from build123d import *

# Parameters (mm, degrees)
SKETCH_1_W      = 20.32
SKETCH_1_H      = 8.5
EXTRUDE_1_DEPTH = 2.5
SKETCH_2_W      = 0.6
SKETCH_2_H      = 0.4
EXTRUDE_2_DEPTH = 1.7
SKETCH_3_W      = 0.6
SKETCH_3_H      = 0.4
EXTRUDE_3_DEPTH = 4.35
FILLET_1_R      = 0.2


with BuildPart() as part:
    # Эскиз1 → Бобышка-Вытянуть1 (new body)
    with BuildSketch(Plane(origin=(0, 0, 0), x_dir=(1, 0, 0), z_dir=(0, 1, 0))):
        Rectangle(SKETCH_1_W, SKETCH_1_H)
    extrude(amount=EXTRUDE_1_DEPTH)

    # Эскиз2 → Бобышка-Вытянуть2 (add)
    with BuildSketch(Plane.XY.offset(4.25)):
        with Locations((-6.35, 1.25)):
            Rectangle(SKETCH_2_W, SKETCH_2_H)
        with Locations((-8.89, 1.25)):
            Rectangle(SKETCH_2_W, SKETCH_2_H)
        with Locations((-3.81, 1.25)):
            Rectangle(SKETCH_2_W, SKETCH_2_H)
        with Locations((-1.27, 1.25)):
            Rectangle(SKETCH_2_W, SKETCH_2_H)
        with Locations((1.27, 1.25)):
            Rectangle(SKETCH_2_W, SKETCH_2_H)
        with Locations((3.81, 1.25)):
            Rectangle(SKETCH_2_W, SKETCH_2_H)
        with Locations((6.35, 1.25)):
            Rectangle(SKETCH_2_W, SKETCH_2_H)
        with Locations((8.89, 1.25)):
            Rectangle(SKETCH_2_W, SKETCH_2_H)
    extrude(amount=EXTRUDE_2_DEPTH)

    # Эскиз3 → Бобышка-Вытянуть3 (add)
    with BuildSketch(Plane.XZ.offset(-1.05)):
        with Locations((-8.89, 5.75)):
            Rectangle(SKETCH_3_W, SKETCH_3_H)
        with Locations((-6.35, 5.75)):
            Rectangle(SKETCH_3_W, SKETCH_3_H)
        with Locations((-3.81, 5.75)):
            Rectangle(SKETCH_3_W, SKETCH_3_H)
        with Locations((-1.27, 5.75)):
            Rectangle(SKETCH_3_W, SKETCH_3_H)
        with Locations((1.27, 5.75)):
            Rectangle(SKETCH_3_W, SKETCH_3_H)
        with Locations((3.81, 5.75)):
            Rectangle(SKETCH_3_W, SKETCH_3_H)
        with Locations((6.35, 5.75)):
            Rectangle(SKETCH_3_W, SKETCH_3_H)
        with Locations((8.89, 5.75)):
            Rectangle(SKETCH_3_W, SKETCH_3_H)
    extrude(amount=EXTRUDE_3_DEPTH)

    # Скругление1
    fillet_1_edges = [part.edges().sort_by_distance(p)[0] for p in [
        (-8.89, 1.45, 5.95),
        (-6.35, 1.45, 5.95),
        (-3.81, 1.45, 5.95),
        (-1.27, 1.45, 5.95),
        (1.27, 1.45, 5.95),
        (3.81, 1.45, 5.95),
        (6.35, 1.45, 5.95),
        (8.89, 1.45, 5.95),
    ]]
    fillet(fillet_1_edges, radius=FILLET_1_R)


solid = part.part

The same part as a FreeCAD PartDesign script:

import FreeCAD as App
import Part
import Sketcher
from FreeCAD import Vector


def edges_at(feature, points):
    """Names of the edges that pass closest to the given points."""
    edges = feature.Shape.Edges
    near = lambda p: min(range(len(edges)), key=lambda i: edges[i].distToShape(Part.Vertex(*p))[0])
    return sorted({f"Edge{near(p) + 1}" for p in points})

doc = App.newDocument("Part")
body = doc.addObject("PartDesign::Body", "Body")

# Sketch on XZ plane
sketch1 = body.newObject("Sketcher::SketchObject", "Sketch")
sketch1.AttachmentSupport = (doc.getObject("XZ_Plane"), [""])
sketch1.MapMode = "FlatFace"
sketch1.addGeometry([
    Part.LineSegment(Vector(-10, -4, 0), Vector(-10, 4, 0)),
    Part.LineSegment(Vector(-10, 4, 0), Vector(10, 4, 0)),
    Part.LineSegment(Vector(10, 4, 0), Vector(10, -4, 0)),
    Part.LineSegment(Vector(10, -4, 0), Vector(-10, -4, 0)),
], False)
sketch1.addConstraint([
    Sketcher.Constraint("Coincident", 0, 2, 1, 1),
    Sketcher.Constraint("Coincident", 1, 2, 2, 1),
    Sketcher.Constraint("Coincident", 2, 2, 3, 1),
    Sketcher.Constraint("Coincident", 3, 2, 0, 1),
    Sketcher.Constraint("Vertical", 0),
    Sketcher.Constraint("Horizontal", 1),
    Sketcher.Constraint("Vertical", 2),
    Sketcher.Constraint("Horizontal", 3),
    Sketcher.Constraint("Symmetric", 0, 2, 2, 2, -1, 1),
    Sketcher.Constraint("DistanceY", 0, 1, 0, 2, 8.5),
    Sketcher.Constraint("DistanceX", 1, 1, 1, 2, 20.32),
])
pad1 = body.newObject("PartDesign::Pad", "Pad")
pad1.Profile = sketch1
pad1.Length = 2.5
pad1.Reversed = True

# Sketch on XY plane
sketch2 = body.newObject("Sketcher::SketchObject", "Sketch001")
sketch2.AttachmentSupport = (doc.getObject("XY_Plane"), [""])
sketch2.MapMode = "FlatFace"
sketch2.AttachmentOffset = App.Placement(Vector(0, 0, 4.25), App.Rotation())
sketch2.addGeometry([
    Part.LineSegment(Vector(-6.65, 1.45, 0), Vector(-6.65, 1.05, 0)),  # 0
    Part.LineSegment(Vector(-6.65, 1.05, 0), Vector(-6.05, 1.05, 0)),  # 1
    Part.LineSegment(Vector(-6.05, 1.05, 0), Vector(-6.05, 1.45, 0)),  # 2
    Part.LineSegment(Vector(-6.05, 1.45, 0), Vector(-6.65, 1.45, 0)),  # 3
    Part.LineSegment(Vector(-9.19, 1.45, 0), Vector(-9.19, 1.05, 0)),  # 4
    Part.LineSegment(Vector(-9.19, 1.05, 0), Vector(-8.59, 1.05, 0)),  # 5
    Part.LineSegment(Vector(-8.59, 1.05, 0), Vector(-8.59, 1.45, 0)),  # 6
    Part.LineSegment(Vector(-8.59, 1.45, 0), Vector(-9.19, 1.45, 0)),  # 7
    Part.LineSegment(Vector(-4.11, 1.45, 0), Vector(-4.11, 1.05, 0)),  # 8
    Part.LineSegment(Vector(-4.11, 1.05, 0), Vector(-3.51, 1.05, 0)),  # 9
    Part.LineSegment(Vector(-3.51, 1.05, 0), Vector(-3.51, 1.45, 0)),  # 10
    Part.LineSegment(Vector(-3.51, 1.45, 0), Vector(-4.11, 1.45, 0)),  # 11
    Part.LineSegment(Vector(-1.57, 1.45, 0), Vector(-1.57, 1.05, 0)),  # 12
    Part.LineSegment(Vector(-1.57, 1.05, 0), Vector(-0.97, 1.05, 0)),  # 13
    Part.LineSegment(Vector(-0.97, 1.05, 0), Vector(-0.97, 1.45, 0)),  # 14
    Part.LineSegment(Vector(-0.97, 1.45, 0), Vector(-1.57, 1.45, 0)),  # 15
    Part.LineSegment(Vector(0.97, 1.45, 0), Vector(0.97, 1.05, 0)),  # 16
    Part.LineSegment(Vector(0.97, 1.05, 0), Vector(1.57, 1.05, 0)),  # 17
    Part.LineSegment(Vector(1.57, 1.05, 0), Vector(1.57, 1.45, 0)),  # 18
    Part.LineSegment(Vector(1.57, 1.45, 0), Vector(0.97, 1.45, 0)),  # 19
    Part.LineSegment(Vector(3.51, 1.45, 0), Vector(3.51, 1.05, 0)),  # 20
    Part.LineSegment(Vector(3.51, 1.05, 0), Vector(4.11, 1.05, 0)),  # 21
    Part.LineSegment(Vector(4.11, 1.05, 0), Vector(4.11, 1.45, 0)),  # 22
    Part.LineSegment(Vector(4.11, 1.45, 0), Vector(3.51, 1.45, 0)),  # 23
    Part.LineSegment(Vector(6.05, 1.45, 0), Vector(6.05, 1.05, 0)),  # 24
    Part.LineSegment(Vector(6.05, 1.05, 0), Vector(6.65, 1.05, 0)),  # 25
    Part.LineSegment(Vector(6.65, 1.05, 0), Vector(6.65, 1.45, 0)),  # 26
    Part.LineSegment(Vector(6.65, 1.45, 0), Vector(6.05, 1.45, 0)),  # 27
    Part.LineSegment(Vector(8.59, 1.45, 0), Vector(8.59, 1.05, 0)),  # 28
    Part.LineSegment(Vector(8.59, 1.05, 0), Vector(9.19, 1.05, 0)),  # 29
    Part.LineSegment(Vector(9.19, 1.05, 0), Vector(9.19, 1.45, 0)),  # 30
    Part.LineSegment(Vector(9.19, 1.45, 0), Vector(8.59, 1.45, 0)),  # 31
], False)
sketch2.addConstraint([
    Sketcher.Constraint("Coincident", 0, 2, 1, 1),
    Sketcher.Constraint("Coincident", 1, 2, 2, 1),
    Sketcher.Constraint("Coincident", 2, 2, 3, 1),
    Sketcher.Constraint("Coincident", 3, 2, 0, 1),
    Sketcher.Constraint("Coincident", 4, 2, 5, 1),
    Sketcher.Constraint("Coincident", 5, 2, 6, 1),
    Sketcher.Constraint("Coincident", 6, 2, 7, 1),
    Sketcher.Constraint("Coincident", 7, 2, 4, 1),
    Sketcher.Constraint("Coincident", 8, 2, 9, 1),
    Sketcher.Constraint("Coincident", 9, 2, 10, 1),
    Sketcher.Constraint("Coincident", 10, 2, 11, 1),
    Sketcher.Constraint("Coincident", 11, 2, 8, 1),
    Sketcher.Constraint("Coincident", 12, 2, 13, 1),
    Sketcher.Constraint("Coincident", 13, 2, 14, 1),
    Sketcher.Constraint("Coincident", 14, 2, 15, 1),
    Sketcher.Constraint("Coincident", 15, 2, 12, 1),
    Sketcher.Constraint("Coincident", 16, 2, 17, 1),
    Sketcher.Constraint("Coincident", 17, 2, 18, 1),
    Sketcher.Constraint("Coincident", 18, 2, 19, 1),
    Sketcher.Constraint("Coincident", 19, 2, 16, 1),
    Sketcher.Constraint("Coincident", 20, 2, 21, 1),
    Sketcher.Constraint("Coincident", 21, 2, 22, 1),
    Sketcher.Constraint("Coincident", 22, 2, 23, 1),
    Sketcher.Constraint("Coincident", 23, 2, 20, 1),
    Sketcher.Constraint("Coincident", 24, 2, 25, 1),
    Sketcher.Constraint("Coincident", 25, 2, 26, 1),
    Sketcher.Constraint("Coincident", 26, 2, 27, 1),
    Sketcher.Constraint("Coincident", 27, 2, 24, 1),
    Sketcher.Constraint("Coincident", 28, 2, 29, 1),
    Sketcher.Constraint("Coincident", 29, 2, 30, 1),
    Sketcher.Constraint("Coincident", 30, 2, 31, 1),
    Sketcher.Constraint("Coincident", 31, 2, 28, 1),
    Sketcher.Constraint("Vertical", 0),
    Sketcher.Constraint("Horizontal", 1),
    Sketcher.Constraint("Vertical", 2),
    Sketcher.Constraint("Horizontal", 3),
    Sketcher.Constraint("Vertical", 4),
    Sketcher.Constraint("Horizontal", 5),
    Sketcher.Constraint("Vertical", 6),
    Sketcher.Constraint("Horizontal", 7),
    Sketcher.Constraint("Vertical", 8),
    Sketcher.Constraint("Horizontal", 9),
    Sketcher.Constraint("Vertical", 10),
    Sketcher.Constraint("Horizontal", 11),
    Sketcher.Constraint("Vertical", 12),
    Sketcher.Constraint("Horizontal", 13),
    Sketcher.Constraint("Vertical", 14),
    Sketcher.Constraint("Horizontal", 15),
    Sketcher.Constraint("Vertical", 16),
    Sketcher.Constraint("Horizontal", 17),
    Sketcher.Constraint("Vertical", 18),
    Sketcher.Constraint("Horizontal", 19),
    Sketcher.Constraint("Vertical", 20),
    Sketcher.Constraint("Horizontal", 21),
    Sketcher.Constraint("Vertical", 22),
    Sketcher.Constraint("Horizontal", 23),
    Sketcher.Constraint("Vertical", 24),
    Sketcher.Constraint("Horizontal", 25),
    Sketcher.Constraint("Vertical", 26),
    Sketcher.Constraint("Horizontal", 27),
    Sketcher.Constraint("Vertical", 28),
    Sketcher.Constraint("Horizontal", 29),
    Sketcher.Constraint("Vertical", 30),
    Sketcher.Constraint("Horizontal", 31),
    Sketcher.Constraint("Symmetric", 13, 2, 16, 2, -2),
    Sketcher.Constraint("Symmetric", 15, 2, 18, 2, -2),
    Sketcher.Constraint("Symmetric", 9, 2, 20, 2, -2),
    Sketcher.Constraint("Symmetric", 11, 2, 22, 2, -2),
    Sketcher.Constraint("Symmetric", 1, 2, 24, 2, -2),
    Sketcher.Constraint("Symmetric", 3, 2, 26, 2, -2),
    Sketcher.Constraint("Symmetric", 5, 2, 28, 2, -2),
    Sketcher.Constraint("Symmetric", 7, 2, 30, 2, -2),
    Sketcher.Constraint("Horizontal", 1, 2, 4, 2),
    Sketcher.Constraint("Horizontal", 3, 2, 6, 2),
    Sketcher.Constraint("Horizontal", 5, 2, 8, 2),
    Sketcher.Constraint("Horizontal", 7, 2, 10, 2),
    Sketcher.Constraint("Horizontal", 9, 2, 12, 2),
    Sketcher.Constraint("Horizontal", 11, 2, 14, 2),
    Sketcher.Constraint("Equal", 3, 5),
    Sketcher.Constraint("Equal", 7, 9),
    Sketcher.Constraint("Equal", 11, 13),
    Sketcher.Constraint("DistanceX", 1, 1, 1, 2, 0.6),
    Sketcher.Constraint("DistanceY", 0, 2, 0, 1, 0.4),
    Sketcher.Constraint("DistanceX", 0, 2, -1, 1, 6.65),
    Sketcher.Constraint("DistanceY", -1, 1, 0, 2, 1.05),
    Sketcher.Constraint("DistanceX", 4, 2, -1, 1, 9.19),
    Sketcher.Constraint("DistanceX", 8, 2, -1, 1, 4.11),
    Sketcher.Constraint("DistanceX", 12, 2, -1, 1, 1.57),
])
pad2 = body.newObject("PartDesign::Pad", "Pad001")
pad2.Profile = sketch2
pad2.Length = 1.7

# Sketch on XZ plane
sketch3 = body.newObject("Sketcher::SketchObject", "Sketch002")
sketch3.AttachmentSupport = (doc.getObject("XZ_Plane"), [""])
sketch3.MapMode = "FlatFace"
sketch3.AttachmentOffset = App.Placement(Vector(0, 0, -1.05), App.Rotation())
sketch3.addGeometry([
    Part.LineSegment(Vector(-9.19, 5.95, 0), Vector(-9.19, 5.55, 0)),  # 0
    Part.LineSegment(Vector(-9.19, 5.55, 0), Vector(-8.59, 5.55, 0)),  # 1
    Part.LineSegment(Vector(-8.59, 5.55, 0), Vector(-8.59, 5.95, 0)),  # 2
    Part.LineSegment(Vector(-8.59, 5.95, 0), Vector(-9.19, 5.95, 0)),  # 3
    Part.LineSegment(Vector(-6.65, 5.95, 0), Vector(-6.65, 5.55, 0)),  # 4
    Part.LineSegment(Vector(-6.65, 5.55, 0), Vector(-6.05, 5.55, 0)),  # 5
    Part.LineSegment(Vector(-6.05, 5.55, 0), Vector(-6.05, 5.95, 0)),  # 6
    Part.LineSegment(Vector(-6.05, 5.95, 0), Vector(-6.65, 5.95, 0)),  # 7
    Part.LineSegment(Vector(-4.11, 5.95, 0), Vector(-4.11, 5.55, 0)),  # 8
    Part.LineSegment(Vector(-4.11, 5.55, 0), Vector(-3.51, 5.55, 0)),  # 9
    Part.LineSegment(Vector(-3.51, 5.55, 0), Vector(-3.51, 5.95, 0)),  # 10
    Part.LineSegment(Vector(-3.51, 5.95, 0), Vector(-4.11, 5.95, 0)),  # 11
    Part.LineSegment(Vector(-1.57, 5.95, 0), Vector(-1.57, 5.55, 0)),  # 12
    Part.LineSegment(Vector(-1.57, 5.55, 0), Vector(-0.97, 5.55, 0)),  # 13
    Part.LineSegment(Vector(-0.97, 5.55, 0), Vector(-0.97, 5.95, 0)),  # 14
    Part.LineSegment(Vector(-0.97, 5.95, 0), Vector(-1.57, 5.95, 0)),  # 15
    Part.LineSegment(Vector(0.97, 5.95, 0), Vector(0.97, 5.55, 0)),  # 16
    Part.LineSegment(Vector(0.97, 5.55, 0), Vector(1.57, 5.55, 0)),  # 17
    Part.LineSegment(Vector(1.57, 5.55, 0), Vector(1.57, 5.95, 0)),  # 18
    Part.LineSegment(Vector(1.57, 5.95, 0), Vector(0.97, 5.95, 0)),  # 19
    Part.LineSegment(Vector(3.51, 5.95, 0), Vector(3.51, 5.55, 0)),  # 20
    Part.LineSegment(Vector(3.51, 5.55, 0), Vector(4.11, 5.55, 0)),  # 21
    Part.LineSegment(Vector(4.11, 5.55, 0), Vector(4.11, 5.95, 0)),  # 22
    Part.LineSegment(Vector(4.11, 5.95, 0), Vector(3.51, 5.95, 0)),  # 23
    Part.LineSegment(Vector(6.05, 5.95, 0), Vector(6.05, 5.55, 0)),  # 24
    Part.LineSegment(Vector(6.05, 5.55, 0), Vector(6.65, 5.55, 0)),  # 25
    Part.LineSegment(Vector(6.65, 5.55, 0), Vector(6.65, 5.95, 0)),  # 26
    Part.LineSegment(Vector(6.65, 5.95, 0), Vector(6.05, 5.95, 0)),  # 27
    Part.LineSegment(Vector(8.59, 5.95, 0), Vector(8.59, 5.55, 0)),  # 28
    Part.LineSegment(Vector(8.59, 5.55, 0), Vector(9.19, 5.55, 0)),  # 29
    Part.LineSegment(Vector(9.19, 5.55, 0), Vector(9.19, 5.95, 0)),  # 30
    Part.LineSegment(Vector(9.19, 5.95, 0), Vector(8.59, 5.95, 0)),  # 31
], False)
sketch3.addConstraint([
    Sketcher.Constraint("Coincident", 0, 2, 1, 1),
    Sketcher.Constraint("Coincident", 1, 2, 2, 1),
    Sketcher.Constraint("Coincident", 2, 2, 3, 1),
    Sketcher.Constraint("Coincident", 3, 2, 0, 1),
    Sketcher.Constraint("Coincident", 4, 2, 5, 1),
    Sketcher.Constraint("Coincident", 5, 2, 6, 1),
    Sketcher.Constraint("Coincident", 6, 2, 7, 1),
    Sketcher.Constraint("Coincident", 7, 2, 4, 1),
    Sketcher.Constraint("Coincident", 8, 2, 9, 1),
    Sketcher.Constraint("Coincident", 9, 2, 10, 1),
    Sketcher.Constraint("Coincident", 10, 2, 11, 1),
    Sketcher.Constraint("Coincident", 11, 2, 8, 1),
    Sketcher.Constraint("Coincident", 12, 2, 13, 1),
    Sketcher.Constraint("Coincident", 13, 2, 14, 1),
    Sketcher.Constraint("Coincident", 14, 2, 15, 1),
    Sketcher.Constraint("Coincident", 15, 2, 12, 1),
    Sketcher.Constraint("Coincident", 16, 2, 17, 1),
    Sketcher.Constraint("Coincident", 17, 2, 18, 1),
    Sketcher.Constraint("Coincident", 18, 2, 19, 1),
    Sketcher.Constraint("Coincident", 19, 2, 16, 1),
    Sketcher.Constraint("Coincident", 20, 2, 21, 1),
    Sketcher.Constraint("Coincident", 21, 2, 22, 1),
    Sketcher.Constraint("Coincident", 22, 2, 23, 1),
    Sketcher.Constraint("Coincident", 23, 2, 20, 1),
    Sketcher.Constraint("Coincident", 24, 2, 25, 1),
    Sketcher.Constraint("Coincident", 25, 2, 26, 1),
    Sketcher.Constraint("Coincident", 26, 2, 27, 1),
    Sketcher.Constraint("Coincident", 27, 2, 24, 1),
    Sketcher.Constraint("Coincident", 28, 2, 29, 1),
    Sketcher.Constraint("Coincident", 29, 2, 30, 1),
    Sketcher.Constraint("Coincident", 30, 2, 31, 1),
    Sketcher.Constraint("Coincident", 31, 2, 28, 1),
    Sketcher.Constraint("Vertical", 0),
    Sketcher.Constraint("Horizontal", 1),
    Sketcher.Constraint("Vertical", 2),
    Sketcher.Constraint("Horizontal", 3),
    Sketcher.Constraint("Vertical", 4),
    Sketcher.Constraint("Horizontal", 5),
    Sketcher.Constraint("Vertical", 6),
    Sketcher.Constraint("Horizontal", 7),
    Sketcher.Constraint("Vertical", 8),
    Sketcher.Constraint("Horizontal", 9),
    Sketcher.Constraint("Vertical", 10),
    Sketcher.Constraint("Horizontal", 11),
    Sketcher.Constraint("Vertical", 12),
    Sketcher.Constraint("Horizontal", 13),
    Sketcher.Constraint("Vertical", 14),
    Sketcher.Constraint("Horizontal", 15),
    Sketcher.Constraint("Vertical", 16),
    Sketcher.Constraint("Horizontal", 17),
    Sketcher.Constraint("Vertical", 18),
    Sketcher.Constraint("Horizontal", 19),
    Sketcher.Constraint("Vertical", 20),
    Sketcher.Constraint("Horizontal", 21),
    Sketcher.Constraint("Vertical", 22),
    Sketcher.Constraint("Horizontal", 23),
    Sketcher.Constraint("Vertical", 24),
    Sketcher.Constraint("Horizontal", 25),
    Sketcher.Constraint("Vertical", 26),
    Sketcher.Constraint("Horizontal", 27),
    Sketcher.Constraint("Vertical", 28),
    Sketcher.Constraint("Horizontal", 29),
    Sketcher.Constraint("Vertical", 30),
    Sketcher.Constraint("Horizontal", 31),
    Sketcher.Constraint("Symmetric", 13, 2, 16, 2, -2),
    Sketcher.Constraint("Symmetric", 15, 2, 18, 2, -2),
    Sketcher.Constraint("Symmetric", 9, 2, 20, 2, -2),
    Sketcher.Constraint("Symmetric", 11, 2, 22, 2, -2),
    Sketcher.Constraint("Symmetric", 5, 2, 24, 2, -2),
    Sketcher.Constraint("Symmetric", 7, 2, 26, 2, -2),
    Sketcher.Constraint("Symmetric", 1, 2, 28, 2, -2),
    Sketcher.Constraint("Symmetric", 3, 2, 30, 2, -2),
    Sketcher.Constraint("Horizontal", 1, 2, 4, 2),
    Sketcher.Constraint("Horizontal", 3, 2, 6, 2),
    Sketcher.Constraint("Horizontal", 5, 2, 8, 2),
    Sketcher.Constraint("Horizontal", 7, 2, 10, 2),
    Sketcher.Constraint("Horizontal", 9, 2, 12, 2),
    Sketcher.Constraint("Horizontal", 11, 2, 14, 2),
    Sketcher.Constraint("Equal", 3, 5),
    Sketcher.Constraint("Equal", 7, 9),
    Sketcher.Constraint("Equal", 11, 13),
    Sketcher.Constraint("DistanceX", 1, 1, 1, 2, 0.6),
    Sketcher.Constraint("DistanceY", 0, 2, 0, 1, 0.4),
    Sketcher.Constraint("DistanceX", 0, 2, -1, 1, 9.19),
    Sketcher.Constraint("DistanceY", -1, 1, 0, 2, 5.55),
    Sketcher.Constraint("DistanceX", 4, 2, -1, 1, 6.65),
    Sketcher.Constraint("DistanceX", 8, 2, -1, 1, 4.11),
    Sketcher.Constraint("DistanceX", 12, 2, -1, 1, 1.57),
])
pad3 = body.newObject("PartDesign::Pad", "Pad002")
pad3.Profile = sketch3
pad3.Length = 4.35
doc.recompute()

fillet = body.newObject("PartDesign::Fillet", "Fillet")
fillet.Base = (pad3, edges_at(pad3, [
    (-8.89, 1.45, 5.95),
    (-6.35, 1.45, 5.95),
    (-3.81, 1.45, 5.95),
    (-1.27, 1.45, 5.95),
    (1.27, 1.45, 5.95),
    (3.81, 1.45, 5.95),
    (6.35, 1.45, 5.95),
    (8.89, 1.45, 5.95),
]))
fillet.Radius = 0.2

doc.recompute()
